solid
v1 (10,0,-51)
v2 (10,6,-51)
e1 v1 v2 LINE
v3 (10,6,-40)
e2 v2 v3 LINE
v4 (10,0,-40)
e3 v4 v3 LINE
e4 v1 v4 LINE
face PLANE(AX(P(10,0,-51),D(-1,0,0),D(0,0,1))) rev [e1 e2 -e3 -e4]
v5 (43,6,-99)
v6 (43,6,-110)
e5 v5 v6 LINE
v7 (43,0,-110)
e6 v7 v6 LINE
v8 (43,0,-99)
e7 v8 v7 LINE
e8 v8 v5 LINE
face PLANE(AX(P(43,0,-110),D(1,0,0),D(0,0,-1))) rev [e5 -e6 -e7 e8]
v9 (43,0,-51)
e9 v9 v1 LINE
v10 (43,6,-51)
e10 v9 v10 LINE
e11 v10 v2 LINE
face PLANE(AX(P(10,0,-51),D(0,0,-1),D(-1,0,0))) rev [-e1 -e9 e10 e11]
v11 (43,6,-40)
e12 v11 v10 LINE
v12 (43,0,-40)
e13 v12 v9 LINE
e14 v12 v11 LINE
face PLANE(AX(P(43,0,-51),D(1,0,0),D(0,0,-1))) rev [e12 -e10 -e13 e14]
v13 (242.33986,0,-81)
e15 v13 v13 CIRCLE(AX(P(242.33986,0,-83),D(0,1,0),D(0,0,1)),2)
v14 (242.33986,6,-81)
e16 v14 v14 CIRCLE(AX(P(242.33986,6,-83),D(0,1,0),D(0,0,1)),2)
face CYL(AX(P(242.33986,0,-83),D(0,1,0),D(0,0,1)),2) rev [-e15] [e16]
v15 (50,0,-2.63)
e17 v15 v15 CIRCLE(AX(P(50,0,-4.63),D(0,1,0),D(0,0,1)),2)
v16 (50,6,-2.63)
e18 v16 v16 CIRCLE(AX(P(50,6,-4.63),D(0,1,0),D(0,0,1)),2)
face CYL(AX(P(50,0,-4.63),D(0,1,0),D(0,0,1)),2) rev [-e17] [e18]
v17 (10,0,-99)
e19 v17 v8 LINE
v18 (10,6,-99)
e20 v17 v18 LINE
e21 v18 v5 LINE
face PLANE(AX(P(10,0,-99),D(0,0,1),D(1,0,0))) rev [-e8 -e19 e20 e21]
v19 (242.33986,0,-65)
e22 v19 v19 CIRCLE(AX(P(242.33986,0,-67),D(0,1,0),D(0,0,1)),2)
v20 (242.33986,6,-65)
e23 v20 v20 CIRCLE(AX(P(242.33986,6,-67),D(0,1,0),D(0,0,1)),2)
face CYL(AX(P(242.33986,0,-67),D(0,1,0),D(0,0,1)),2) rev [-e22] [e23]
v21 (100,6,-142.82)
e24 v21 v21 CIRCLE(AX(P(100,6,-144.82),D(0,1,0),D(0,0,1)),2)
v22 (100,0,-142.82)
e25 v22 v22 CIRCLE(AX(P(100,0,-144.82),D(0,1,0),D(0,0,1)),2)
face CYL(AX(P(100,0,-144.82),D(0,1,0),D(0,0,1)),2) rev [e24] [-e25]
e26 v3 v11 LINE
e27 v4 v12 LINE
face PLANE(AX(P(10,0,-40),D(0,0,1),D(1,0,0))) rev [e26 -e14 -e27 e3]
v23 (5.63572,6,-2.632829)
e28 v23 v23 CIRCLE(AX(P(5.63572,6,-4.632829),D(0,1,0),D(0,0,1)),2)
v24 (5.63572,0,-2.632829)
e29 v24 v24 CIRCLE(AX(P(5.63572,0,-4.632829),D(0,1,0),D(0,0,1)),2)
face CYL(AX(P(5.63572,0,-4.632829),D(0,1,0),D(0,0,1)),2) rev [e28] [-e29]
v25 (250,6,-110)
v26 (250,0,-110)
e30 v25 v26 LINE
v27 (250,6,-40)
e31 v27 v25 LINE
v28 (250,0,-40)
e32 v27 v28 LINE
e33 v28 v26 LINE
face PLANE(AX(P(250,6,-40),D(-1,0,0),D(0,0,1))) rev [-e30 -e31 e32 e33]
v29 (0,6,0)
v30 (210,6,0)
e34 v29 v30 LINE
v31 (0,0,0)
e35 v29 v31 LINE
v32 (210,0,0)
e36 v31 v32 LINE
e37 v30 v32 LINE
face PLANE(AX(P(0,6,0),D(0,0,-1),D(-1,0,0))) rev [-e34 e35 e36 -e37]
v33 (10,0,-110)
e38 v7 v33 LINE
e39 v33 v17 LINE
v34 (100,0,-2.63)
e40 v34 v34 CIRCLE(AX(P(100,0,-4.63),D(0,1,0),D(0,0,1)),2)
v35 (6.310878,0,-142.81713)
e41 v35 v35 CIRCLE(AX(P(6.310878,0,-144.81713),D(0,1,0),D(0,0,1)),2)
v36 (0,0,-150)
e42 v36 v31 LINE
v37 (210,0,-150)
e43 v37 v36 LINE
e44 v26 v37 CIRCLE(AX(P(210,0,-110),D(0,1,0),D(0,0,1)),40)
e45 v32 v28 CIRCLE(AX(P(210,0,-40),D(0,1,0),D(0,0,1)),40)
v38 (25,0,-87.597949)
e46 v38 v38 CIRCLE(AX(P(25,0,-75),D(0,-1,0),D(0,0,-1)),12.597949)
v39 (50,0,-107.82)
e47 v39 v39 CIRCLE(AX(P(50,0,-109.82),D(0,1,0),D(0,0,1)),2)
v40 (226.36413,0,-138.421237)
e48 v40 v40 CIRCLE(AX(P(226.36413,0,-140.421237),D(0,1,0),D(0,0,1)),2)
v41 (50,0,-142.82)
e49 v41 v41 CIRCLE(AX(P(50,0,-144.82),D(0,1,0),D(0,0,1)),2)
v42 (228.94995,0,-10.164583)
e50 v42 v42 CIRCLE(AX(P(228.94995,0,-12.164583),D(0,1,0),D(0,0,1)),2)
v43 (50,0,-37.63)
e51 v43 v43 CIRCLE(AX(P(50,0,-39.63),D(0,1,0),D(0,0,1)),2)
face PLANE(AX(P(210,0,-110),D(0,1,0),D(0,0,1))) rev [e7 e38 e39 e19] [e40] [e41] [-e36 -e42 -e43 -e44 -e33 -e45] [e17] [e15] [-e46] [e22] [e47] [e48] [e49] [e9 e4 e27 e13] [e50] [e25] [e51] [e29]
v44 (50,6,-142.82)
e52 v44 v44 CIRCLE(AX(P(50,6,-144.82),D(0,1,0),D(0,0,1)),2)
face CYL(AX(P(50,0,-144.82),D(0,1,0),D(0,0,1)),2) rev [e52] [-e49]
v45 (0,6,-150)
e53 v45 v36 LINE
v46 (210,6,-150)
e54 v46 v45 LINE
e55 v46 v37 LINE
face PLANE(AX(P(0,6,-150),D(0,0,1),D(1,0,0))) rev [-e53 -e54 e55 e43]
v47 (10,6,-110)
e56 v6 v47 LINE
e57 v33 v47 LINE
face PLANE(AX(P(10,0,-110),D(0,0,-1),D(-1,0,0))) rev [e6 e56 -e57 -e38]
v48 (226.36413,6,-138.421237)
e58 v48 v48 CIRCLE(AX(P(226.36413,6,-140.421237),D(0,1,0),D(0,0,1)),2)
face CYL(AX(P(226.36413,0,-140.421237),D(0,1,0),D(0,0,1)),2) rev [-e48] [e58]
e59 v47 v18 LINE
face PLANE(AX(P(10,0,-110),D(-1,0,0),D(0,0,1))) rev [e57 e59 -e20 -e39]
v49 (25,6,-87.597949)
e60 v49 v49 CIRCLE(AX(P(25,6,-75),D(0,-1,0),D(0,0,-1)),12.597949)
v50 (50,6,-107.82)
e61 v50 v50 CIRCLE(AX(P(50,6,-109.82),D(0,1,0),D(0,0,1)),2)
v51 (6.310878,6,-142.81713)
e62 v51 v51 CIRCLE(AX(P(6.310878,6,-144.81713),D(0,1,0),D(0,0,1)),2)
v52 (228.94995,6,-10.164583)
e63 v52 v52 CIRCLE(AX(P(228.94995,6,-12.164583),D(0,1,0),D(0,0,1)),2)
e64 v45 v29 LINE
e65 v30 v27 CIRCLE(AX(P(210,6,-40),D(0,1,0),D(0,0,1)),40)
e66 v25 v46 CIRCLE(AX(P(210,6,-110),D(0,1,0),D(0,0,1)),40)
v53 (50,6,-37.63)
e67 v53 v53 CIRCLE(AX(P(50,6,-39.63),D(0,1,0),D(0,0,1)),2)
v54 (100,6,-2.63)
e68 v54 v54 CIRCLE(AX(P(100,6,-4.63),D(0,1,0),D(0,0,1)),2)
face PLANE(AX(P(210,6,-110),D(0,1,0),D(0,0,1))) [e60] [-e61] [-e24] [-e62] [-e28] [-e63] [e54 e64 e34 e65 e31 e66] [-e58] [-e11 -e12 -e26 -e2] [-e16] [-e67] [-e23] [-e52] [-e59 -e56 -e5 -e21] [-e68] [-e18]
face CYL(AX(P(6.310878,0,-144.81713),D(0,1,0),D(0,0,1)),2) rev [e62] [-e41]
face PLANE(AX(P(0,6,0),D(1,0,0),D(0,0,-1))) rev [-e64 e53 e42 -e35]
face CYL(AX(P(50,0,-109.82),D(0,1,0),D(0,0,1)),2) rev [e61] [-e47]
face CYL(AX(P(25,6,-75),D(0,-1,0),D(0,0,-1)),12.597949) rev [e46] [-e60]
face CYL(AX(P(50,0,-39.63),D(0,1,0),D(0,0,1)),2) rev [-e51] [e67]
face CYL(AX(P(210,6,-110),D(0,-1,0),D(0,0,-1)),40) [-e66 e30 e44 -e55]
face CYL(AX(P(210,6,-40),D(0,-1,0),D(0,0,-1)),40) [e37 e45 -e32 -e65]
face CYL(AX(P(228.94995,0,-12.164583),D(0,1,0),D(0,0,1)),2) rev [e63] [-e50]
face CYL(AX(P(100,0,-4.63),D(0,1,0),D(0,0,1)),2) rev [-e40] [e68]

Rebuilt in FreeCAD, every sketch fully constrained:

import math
import FreeCAD as App
import Part
import Sketcher

V = App.Vector
Q = App.Units.Quantity


def add_polygon(sketch, points):
    """Adds a closed chain of lines whose ends are joined by coincident constraints."""
    first, n = sketch.GeometryCount, len(points)
    for a, b in zip(points, points[1:] + points[:1]):
        sketch.addGeometry(Part.LineSegment(App.Vector(*a, 0), App.Vector(*b, 0)), False)
    for i in range(n):
        sketch.addConstraint(Sketcher.Constraint("Coincident", first + i, 2, first + (i + 1) % n, 1))

doc = App.newDocument("Part")
body = doc.addObject("PartDesign::Body", "Body")

sketch1 = body.newObject("Sketcher::SketchObject", "Sketch")
sketch1.AttachmentSupport = (doc.getObject("XZ_Plane"), [""])
sketch1.MapMode = "FlatFace"
sketch1.addGeometry([
    Part.LineSegment(V(0, 0, 0), V(210, 0, 0)),
    Part.ArcOfCircle(Part.Circle(V(210, -40, 0), V(0, 0, 1), 40), math.radians(0), math.radians(90)),
    Part.LineSegment(V(250, -40, 0), V(250, -110, 0)),
    Part.ArcOfCircle(Part.Circle(V(210, -110, 0), V(0, 0, 1), 40), math.radians(-90), math.radians(0)),
    Part.LineSegment(V(210, -150, 0), V(0, -150, 0)),
    Part.LineSegment(V(0, -150, 0), V(0, 0, 0)),
], False)
sketch1.addConstraint([
    Sketcher.Constraint("Tangent", 0, 2, 1, 2),
    Sketcher.Constraint("Tangent", 1, 1, 2, 1),
    Sketcher.Constraint("Tangent", 2, 2, 3, 2),
    Sketcher.Constraint("Tangent", 3, 1, 4, 1),
    Sketcher.Constraint("Coincident", 4, 2, 5, 1),
    Sketcher.Constraint("Coincident", 5, 2, 0, 1),
    Sketcher.Constraint("Horizontal", 0),
    Sketcher.Constraint("Vertical", 2),
    Sketcher.Constraint("Horizontal", 4),
    Sketcher.Constraint("Vertical", 5),
    Sketcher.Constraint("Coincident", 5, 2, -1, 1),
    Sketcher.Constraint("Equal", 1, 3),
    Sketcher.Constraint("Radius", 1, Q("40 mm")),
    Sketcher.Constraint("DistanceX", 0, 1, 0, 2, Q("210 mm")),
    Sketcher.Constraint("DistanceY", 2, 2, 2, 1, Q("70 mm")),
])
pad1 = body.newObject("PartDesign::Pad", "Pad")
pad1.Profile = sketch1
pad1.Length = 6
pad1.Reversed = True

sketch2 = body.newObject("Sketcher::SketchObject", "Sketch001")
sketch2.AttachmentSupport = (doc.getObject("XZ_Plane"), [""])
sketch2.MapMode = "FlatFace"
sketch2.addGeometry(Part.Circle(V(25, -75, 0), V(0, 0, 1), 13), False)
sketch2.addConstraint([
    Sketcher.Constraint("DistanceX", -1, 1, 0, 3, Q("25 mm")),
    Sketcher.Constraint("DistanceY", 0, 3, -1, 1, Q("75 mm")),
    Sketcher.Constraint("Diameter", 0, Q("25.195897 mm")),
])
pocket1 = body.newObject("PartDesign::Pocket", "Pocket")
pocket1.Profile = sketch2
pocket1.Type = "ThroughAll"

sketch3 = body.newObject("Sketcher::SketchObject", "Sketch002")
sketch3.AttachmentSupport = (doc.getObject("XZ_Plane"), [""])
sketch3.MapMode = "FlatFace"
sketch3.AttachmentOffset = App.Placement(V(0, 0, -6), App.Rotation())
sketch3.addGeometry(Part.Circle(V(6.3, -144.8, 0), V(0, 0, 1), 2), False)
sketch3.addConstraint([
    Sketcher.Constraint("Diameter", 0, Q("4 mm")),
    Sketcher.Constraint("DistanceX", -1, 1, 0, 3, Q("6.310878 mm")),
    Sketcher.Constraint("DistanceY", 0, 3, -1, 1, Q("144.81713 mm")),
])
pocket2 = body.newObject("PartDesign::Pocket", "Pocket001")
pocket2.Profile = sketch3
pocket2.Type = "ThroughAll"
pocket2.Reversed = True

sketch4 = body.newObject("Sketcher::SketchObject", "Sketch003")
sketch4.AttachmentSupport = (doc.getObject("XZ_Plane"), [""])
sketch4.MapMode = "FlatFace"
sketch4.AttachmentOffset = App.Placement(V(0, 0, -6), App.Rotation())
sketch4.addGeometry(Part.Circle(V(5.6, -4.6, 0), V(0, 0, 1), 2), False)
sketch4.addConstraint([
    Sketcher.Constraint("Diameter", 0, Q("4 mm")),
    Sketcher.Constraint("DistanceX", -1, 1, 0, 3, Q("5.63572 mm")),
    Sketcher.Constraint("DistanceY", 0, 3, -1, 1, Q("4.632829 mm")),
])
pocket3 = body.newObject("PartDesign::Pocket", "Pocket002")
pocket3.Profile = sketch4
pocket3.Type = "ThroughAll"
pocket3.Reversed = True

sketch5 = body.newObject("Sketcher::SketchObject", "Sketch004")
sketch5.AttachmentSupport = (doc.getObject("XZ_Plane"), [""])
sketch5.MapMode = "FlatFace"
sketch5.AttachmentOffset = App.Placement(V(0, 0, -6), App.Rotation())
sketch5.addGeometry(Part.Circle(V(226.4, -140.4, 0), V(0, 0, 1), 2), False)
sketch5.addConstraint([
    Sketcher.Constraint("Diameter", 0, Q("4 mm")),
    Sketcher.Constraint("DistanceX", -1, 1, 0, 3, Q("226.36413 mm")),
    Sketcher.Constraint("DistanceY", 0, 3, -1, 1, Q("140.421237 mm")),
])
pocket4 = body.newObject("PartDesign::Pocket", "Pocket003")
pocket4.Profile = sketch5
pocket4.Type = "ThroughAll"
pocket4.Reversed = True

sketch6 = body.newObject("Sketcher::SketchObject", "Sketch005")
sketch6.AttachmentSupport = (doc.getObject("XZ_Plane"), [""])
sketch6.MapMode = "FlatFace"
sketch6.AttachmentOffset = App.Placement(V(0, 0, -6), App.Rotation())
sketch6.addGeometry(Part.Circle(V(228.9, -12.2, 0), V(0, 0, 1), 2), False)
sketch6.addConstraint([
    Sketcher.Constraint("Diameter", 0, Q("4 mm")),
    Sketcher.Constraint("DistanceX", -1, 1, 0, 3, Q("228.94995 mm")),
    Sketcher.Constraint("DistanceY", 0, 3, -1, 1, Q("12.164583 mm")),
])
pocket5 = body.newObject("PartDesign::Pocket", "Pocket004")
pocket5.Profile = sketch6
pocket5.Type = "ThroughAll"
pocket5.Reversed = True

sketch7 = body.newObject("Sketcher::SketchObject", "Sketch006")
sketch7.AttachmentSupport = (doc.getObject("XZ_Plane"), [""])
sketch7.MapMode = "FlatFace"
sketch7.AttachmentOffset = App.Placement(V(0, 0, -6), App.Rotation())
sketch7.addGeometry([
    Part.Circle(V(242.3, -83, 0), V(0, 0, 1), 2),
    Part.Circle(V(242.3, -67, 0), V(0, 0, 1), 2),
], False)
sketch7.addConstraint([
    Sketcher.Constraint("Equal", 0, 1),
    Sketcher.Constraint("Vertical", 0, 3, 1, 3),
    Sketcher.Constraint("Diameter", 0, Q("4 mm")),
    Sketcher.Constraint("DistanceY", 0, 3, -1, 1, Q("83 mm")),
    Sketcher.Constraint("DistanceY", 1, 3, -1, 1, Q("67 mm")),
    Sketcher.Constraint("DistanceX", -1, 1, 0, 3, Q("242.33986 mm")),
])
pocket6 = body.newObject("PartDesign::Pocket", "Pocket005")
pocket6.Profile = sketch7
pocket6.Type = "ThroughAll"
pocket6.Reversed = True

sketch8 = body.newObject("Sketcher::SketchObject", "Sketch007")
sketch8.AttachmentSupport = (doc.getObject("XZ_Plane"), [""])
sketch8.MapMode = "FlatFace"
sketch8.AttachmentOffset = App.Placement(V(0, 0, -6), App.Rotation())
sketch8.addGeometry([
    Part.Circle(V(50, -144.8, 0), V(0, 0, 1), 2),
    Part.Circle(V(50, -4.6, 0), V(0, 0, 1), 2),
    Part.Circle(V(100, -4.6, 0), V(0, 0, 1), 2),
    Part.Circle(V(100, -144.8, 0), V(0, 0, 1), 2),
    Part.Circle(V(50, -109.8, 0), V(0, 0, 1), 2),
    Part.Circle(V(50, -39.6, 0), V(0, 0, 1), 2),
], False)
sketch8.addConstraint([
    Sketcher.Constraint("Equal", 0, 1),
    Sketcher.Constraint("Equal", 1, 2),
    Sketcher.Constraint("Equal", 2, 3),
    Sketcher.Constraint("Equal", 3, 4),
    Sketcher.Constraint("Equal", 4, 5),
    Sketcher.Constraint("Horizontal", 1, 3, 2, 3),
    Sketcher.Constraint("Horizontal", 0, 3, 3, 3),
    Sketcher.Constraint("Vertical", 0, 3, 1, 3),
    Sketcher.Constraint("Vertical", 2, 3, 3, 3),
    Sketcher.Constraint("Vertical", 1, 3, 4, 3),
    Sketcher.Constraint("Vertical", 4, 3, 5, 3),
    Sketcher.Constraint("Diameter", 0, Q("4 mm")),
    Sketcher.Constraint("DistanceX", -1, 1, 0, 3, Q("50 mm")),
    Sketcher.Constraint("DistanceX", -1, 1, 2, 3, Q("100 mm")),
    Sketcher.Constraint("DistanceY", 0, 3, 4, 3, Q("35 mm")),
    Sketcher.Constraint("DistanceY", 5, 3, 1, 3, Q("35 mm")),
    Sketcher.Constraint("DistanceY", 0, 3, -1, 1, Q("144.82 mm")),
    Sketcher.Constraint("DistanceY", 1, 3, -1, 1, Q("4.63 mm")),
])
pocket7 = body.newObject("PartDesign::Pocket", "Pocket006")
pocket7.Profile = sketch8
pocket7.Type = "ThroughAll"
pocket7.Reversed = True

sketch9 = body.newObject("Sketcher::SketchObject", "Sketch008")
sketch9.AttachmentSupport = (doc.getObject("XZ_Plane"), [""])
sketch9.MapMode = "FlatFace"
sketch9.AttachmentOffset = App.Placement(V(0, 0, -6), App.Rotation())
add_polygon(sketch9, [(10, -110), (10, -99), (43, -99), (43, -110)])
add_polygon(sketch9, [(10, -51), (10, -40), (43, -40), (43, -51)])
sketch9.addConstraint([
    Sketcher.Constraint("Vertical", 0),
    Sketcher.Constraint("Horizontal", 1),
    Sketcher.Constraint("Vertical", 2),
    Sketcher.Constraint("Horizontal", 3),
    Sketcher.Constraint("Vertical", 4),
    Sketcher.Constraint("Horizontal", 5),
    Sketcher.Constraint("Vertical", 6),
    Sketcher.Constraint("Horizontal", 7),
    Sketcher.Constraint("Vertical", 3, 2, 4, 2),
    Sketcher.Constraint("Vertical", 2, 2, 5, 2),
    Sketcher.Constraint("Equal", 2, 4),
    Sketcher.Constraint("DistanceX", 1, 1, 1, 2, Q("33 mm")),
    Sketcher.Constraint("DistanceY", 0, 1, 0, 2, Q("11 mm")),
    Sketcher.Constraint("DistanceX", -1, 1, 0, 2, Q("10 mm")),
    Sketcher.Constraint("DistanceY", 0, 2, -1, 1, Q("99 mm")),
    Sketcher.Constraint("DistanceY", 4, 2, -1, 1, Q("40 mm")),
])
pocket8 = body.newObject("PartDesign::Pocket", "Pocket007")
pocket8.Profile = sketch9
pocket8.Type = "ThroughAll"
pocket8.Reversed = True

doc.recompute()
